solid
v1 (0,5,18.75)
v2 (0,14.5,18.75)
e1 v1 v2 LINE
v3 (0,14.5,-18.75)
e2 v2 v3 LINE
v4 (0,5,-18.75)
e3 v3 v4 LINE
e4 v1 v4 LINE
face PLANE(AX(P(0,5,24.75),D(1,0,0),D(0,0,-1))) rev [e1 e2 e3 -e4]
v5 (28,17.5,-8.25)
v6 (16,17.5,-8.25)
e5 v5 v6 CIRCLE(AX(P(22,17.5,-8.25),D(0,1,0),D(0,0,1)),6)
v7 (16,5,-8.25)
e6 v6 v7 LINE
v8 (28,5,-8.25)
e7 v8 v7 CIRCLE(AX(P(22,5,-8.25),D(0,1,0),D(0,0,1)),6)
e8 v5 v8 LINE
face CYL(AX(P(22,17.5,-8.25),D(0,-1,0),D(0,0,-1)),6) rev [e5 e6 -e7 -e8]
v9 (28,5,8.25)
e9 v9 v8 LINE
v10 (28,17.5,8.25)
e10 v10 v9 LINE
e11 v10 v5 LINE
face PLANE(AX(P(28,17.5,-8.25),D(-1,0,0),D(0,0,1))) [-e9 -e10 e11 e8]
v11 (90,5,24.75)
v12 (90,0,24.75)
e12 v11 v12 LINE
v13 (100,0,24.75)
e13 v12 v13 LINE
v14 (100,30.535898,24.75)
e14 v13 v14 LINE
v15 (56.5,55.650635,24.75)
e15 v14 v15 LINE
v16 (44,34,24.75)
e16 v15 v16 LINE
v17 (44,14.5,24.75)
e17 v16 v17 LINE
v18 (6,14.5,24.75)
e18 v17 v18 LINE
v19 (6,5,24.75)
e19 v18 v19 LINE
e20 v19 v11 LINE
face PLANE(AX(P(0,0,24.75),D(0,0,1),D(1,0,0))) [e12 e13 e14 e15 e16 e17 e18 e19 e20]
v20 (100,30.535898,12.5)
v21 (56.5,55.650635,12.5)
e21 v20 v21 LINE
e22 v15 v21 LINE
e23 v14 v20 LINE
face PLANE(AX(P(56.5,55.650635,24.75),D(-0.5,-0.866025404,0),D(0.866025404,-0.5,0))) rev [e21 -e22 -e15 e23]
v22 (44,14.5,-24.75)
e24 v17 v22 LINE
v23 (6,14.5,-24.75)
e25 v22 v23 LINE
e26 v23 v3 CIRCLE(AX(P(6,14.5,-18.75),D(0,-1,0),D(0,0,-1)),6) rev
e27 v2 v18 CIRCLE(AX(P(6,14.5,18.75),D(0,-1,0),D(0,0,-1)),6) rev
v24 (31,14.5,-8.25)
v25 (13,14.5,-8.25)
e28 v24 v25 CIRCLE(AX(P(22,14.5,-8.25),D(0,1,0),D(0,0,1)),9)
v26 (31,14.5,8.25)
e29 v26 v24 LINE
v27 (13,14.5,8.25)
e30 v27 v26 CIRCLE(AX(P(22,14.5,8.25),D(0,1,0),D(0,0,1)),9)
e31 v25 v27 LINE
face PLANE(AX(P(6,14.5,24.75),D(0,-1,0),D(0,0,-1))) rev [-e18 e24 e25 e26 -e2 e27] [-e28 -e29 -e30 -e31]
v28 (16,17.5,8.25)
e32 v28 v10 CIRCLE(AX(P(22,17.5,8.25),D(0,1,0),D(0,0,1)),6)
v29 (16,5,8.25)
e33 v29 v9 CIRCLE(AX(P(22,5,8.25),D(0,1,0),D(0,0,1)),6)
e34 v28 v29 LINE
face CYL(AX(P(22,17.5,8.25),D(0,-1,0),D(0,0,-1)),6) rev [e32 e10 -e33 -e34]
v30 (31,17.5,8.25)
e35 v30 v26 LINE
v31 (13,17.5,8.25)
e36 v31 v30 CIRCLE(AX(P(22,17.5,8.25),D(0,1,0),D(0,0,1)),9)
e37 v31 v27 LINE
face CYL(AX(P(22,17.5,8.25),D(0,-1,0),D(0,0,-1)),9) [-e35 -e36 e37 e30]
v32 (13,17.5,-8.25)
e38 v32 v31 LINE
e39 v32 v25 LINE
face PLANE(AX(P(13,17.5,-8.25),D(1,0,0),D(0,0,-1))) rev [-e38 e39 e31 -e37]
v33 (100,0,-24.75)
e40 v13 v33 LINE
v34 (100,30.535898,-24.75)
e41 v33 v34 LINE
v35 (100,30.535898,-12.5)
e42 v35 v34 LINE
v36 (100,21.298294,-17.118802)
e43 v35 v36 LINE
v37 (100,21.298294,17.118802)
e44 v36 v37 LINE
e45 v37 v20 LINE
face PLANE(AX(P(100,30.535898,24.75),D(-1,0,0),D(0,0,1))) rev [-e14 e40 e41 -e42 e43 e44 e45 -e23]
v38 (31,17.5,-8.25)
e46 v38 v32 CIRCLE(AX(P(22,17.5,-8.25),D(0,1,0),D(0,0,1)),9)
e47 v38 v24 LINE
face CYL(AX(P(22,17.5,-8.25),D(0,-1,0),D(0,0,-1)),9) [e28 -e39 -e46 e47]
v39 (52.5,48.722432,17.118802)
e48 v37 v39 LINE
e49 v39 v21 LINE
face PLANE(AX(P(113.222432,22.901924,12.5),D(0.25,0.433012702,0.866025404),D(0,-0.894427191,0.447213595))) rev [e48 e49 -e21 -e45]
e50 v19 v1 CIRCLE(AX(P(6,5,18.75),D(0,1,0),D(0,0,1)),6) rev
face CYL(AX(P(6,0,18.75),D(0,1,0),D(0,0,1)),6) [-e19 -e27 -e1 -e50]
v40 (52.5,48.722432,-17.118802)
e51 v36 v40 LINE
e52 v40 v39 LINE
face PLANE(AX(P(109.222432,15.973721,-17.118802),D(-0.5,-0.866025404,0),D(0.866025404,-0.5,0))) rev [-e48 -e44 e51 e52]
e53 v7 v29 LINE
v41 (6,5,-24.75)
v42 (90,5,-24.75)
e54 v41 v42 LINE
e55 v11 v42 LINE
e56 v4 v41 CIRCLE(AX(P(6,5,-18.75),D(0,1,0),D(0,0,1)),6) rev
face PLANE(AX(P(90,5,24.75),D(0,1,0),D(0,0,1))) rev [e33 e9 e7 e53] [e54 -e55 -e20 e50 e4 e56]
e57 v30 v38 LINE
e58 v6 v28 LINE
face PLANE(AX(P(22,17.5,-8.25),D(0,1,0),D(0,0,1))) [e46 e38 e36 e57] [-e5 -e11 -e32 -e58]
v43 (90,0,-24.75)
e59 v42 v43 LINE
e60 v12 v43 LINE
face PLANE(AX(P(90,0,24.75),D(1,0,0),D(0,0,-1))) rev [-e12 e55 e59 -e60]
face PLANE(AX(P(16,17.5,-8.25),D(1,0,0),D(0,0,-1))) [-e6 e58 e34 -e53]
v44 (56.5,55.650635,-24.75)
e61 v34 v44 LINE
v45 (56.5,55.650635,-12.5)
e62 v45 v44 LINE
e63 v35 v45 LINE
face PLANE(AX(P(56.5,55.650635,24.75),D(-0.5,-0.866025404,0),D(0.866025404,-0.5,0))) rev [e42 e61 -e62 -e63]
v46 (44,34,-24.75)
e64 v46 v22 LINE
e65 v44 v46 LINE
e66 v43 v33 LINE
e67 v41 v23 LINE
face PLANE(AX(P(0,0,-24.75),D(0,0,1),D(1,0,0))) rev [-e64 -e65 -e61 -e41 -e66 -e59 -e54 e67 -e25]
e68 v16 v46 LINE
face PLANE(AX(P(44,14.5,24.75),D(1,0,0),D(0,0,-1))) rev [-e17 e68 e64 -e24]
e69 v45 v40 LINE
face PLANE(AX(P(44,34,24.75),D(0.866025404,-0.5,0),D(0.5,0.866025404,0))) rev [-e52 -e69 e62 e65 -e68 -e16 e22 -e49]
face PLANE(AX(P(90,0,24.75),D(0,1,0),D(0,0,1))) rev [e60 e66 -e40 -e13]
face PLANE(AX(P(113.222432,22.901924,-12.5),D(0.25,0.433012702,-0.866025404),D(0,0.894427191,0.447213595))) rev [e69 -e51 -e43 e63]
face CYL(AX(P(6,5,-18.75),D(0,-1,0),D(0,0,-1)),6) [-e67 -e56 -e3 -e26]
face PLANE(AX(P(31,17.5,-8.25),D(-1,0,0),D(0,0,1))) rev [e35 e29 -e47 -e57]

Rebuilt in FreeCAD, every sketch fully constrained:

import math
import FreeCAD as App
import Part
import Sketcher
Q = App.Units.Quantity


def edges_at(feature, points):
    """Names of the edges that pass closest to the given points."""
    edges = feature.Shape.Edges
    near = lambda p: min(range(len(edges)), key=lambda i: edges[i].distToShape(Part.Vertex(*p))[0])
    return sorted({f"Edge{near(p) + 1}" for p in points})

doc = App.newDocument("Part")
body = doc.addObject("PartDesign::Body", "Body")

# Sketch on XY plane
sketch1 = body.newObject("Sketcher::SketchObject", "Sketch")
sketch1.AttachmentSupport = (doc.getObject("XY_Plane"), [""])
sketch1.MapMode = "FlatFace"
sketch1.addGeometry([
    Part.LineSegment(App.Vector(56, 56, 0), App.Vector(44, 34, 0)),  # 0
    Part.LineSegment(App.Vector(44, 34, 0), App.Vector(44, 14, 0)),  # 1
    Part.LineSegment(App.Vector(44, 14, 0), App.Vector(0, 14, 0)),  # 2
    Part.LineSegment(App.Vector(0, 14, 0), App.Vector(0, 5, 0)),  # 3
    Part.LineSegment(App.Vector(0, 5, 0), App.Vector(90, 5, 0)),  # 4
    Part.LineSegment(App.Vector(90, 5, 0), App.Vector(90, 0, 0)),  # 5
    Part.LineSegment(App.Vector(90, 0, 0), App.Vector(100, 0, 0)),  # 6
    Part.LineSegment(App.Vector(100, 0, 0), App.Vector(100, 31, 0)),  # 7
    Part.LineSegment(App.Vector(100, 31, 0), App.Vector(56, 56, 0)),  # 8
], False)
sketch1.addConstraint([
    Sketcher.Constraint("Coincident", 0, 2, 1, 1),
    Sketcher.Constraint("Coincident", 1, 2, 2, 1),
    Sketcher.Constraint("Coincident", 2, 2, 3, 1),
    Sketcher.Constraint("Coincident", 3, 2, 4, 1),
    Sketcher.Constraint("Coincident", 4, 2, 5, 1),
    Sketcher.Constraint("Coincident", 5, 2, 6, 1),
    Sketcher.Constraint("Coincident", 6, 2, 7, 1),
    Sketcher.Constraint("Coincident", 7, 2, 8, 1),
    Sketcher.Constraint("Coincident", 8, 2, 0, 1),
    Sketcher.Constraint("Vertical", 1),
    Sketcher.Constraint("Horizontal", 2),
    Sketcher.Constraint("Vertical", 3),
    Sketcher.Constraint("Horizontal", 4),
    Sketcher.Constraint("Vertical", 5),
    Sketcher.Constraint("Horizontal", 6),
    Sketcher.Constraint("Vertical", 7),
    Sketcher.Constraint("PointOnObject", 2, 2, -2),
    Sketcher.Constraint("PointOnObject", 5, 2, -1),
    Sketcher.Constraint("Perpendicular", 0, 8),
    Sketcher.Constraint("DistanceX", 2, 2, 2, 1, Q("44 mm")),
    Sketcher.Constraint("DistanceX", 4, 1, 4, 2, Q("90 mm")),
    Sketcher.Constraint("DistanceX", 6, 1, 6, 2, Q("10 mm")),
    Sketcher.Constraint("DistanceY", 5, 2, 5, 1, Q("5 mm")),
    Sketcher.Constraint("Angle", 0, Q("-120 deg")),
    Sketcher.Constraint("Distance", 0, Q("25 mm")),
    Sketcher.Constraint("DistanceY", 1, 2, 1, 1, Q("19.5 mm")),
    Sketcher.Constraint("DistanceY", 3, 2, 3, 1, Q("9.5 mm")),
])
pad1 = body.newObject("PartDesign::Pad", "Pad")
pad1.Profile = sketch1
pad1.Length = 49.5
pad1.Midplane = True

# Sketch on XZ plane
sketch2 = body.newObject("Sketcher::SketchObject", "Sketch001")
sketch2.AttachmentSupport = (doc.getObject("XZ_Plane"), [""])
sketch2.MapMode = "FlatFace"
sketch2.AttachmentOffset = App.Placement(App.Vector(0, 0, -14.5), App.Rotation())
sketch2.addGeometry([
    Part.LineSegment(App.Vector(31, 8, 0), App.Vector(31, -8, 0)),  # 0
    Part.ArcOfCircle(Part.Circle(App.Vector(22, -8, 0), App.Vector(0, 0, 1), 9), math.radians(180), math.radians(360)),  # 1
    Part.LineSegment(App.Vector(13, -8, 0), App.Vector(13, 8, 0)),  # 2
    Part.ArcOfCircle(Part.Circle(App.Vector(22, 8, 0), App.Vector(0, 0, 1), 9), math.radians(0), math.radians(180)),  # 3
    Part.LineSegment(App.Vector(28, -8, 0), App.Vector(28, 8, 0)),  # 4
    Part.ArcOfCircle(Part.Circle(App.Vector(22, 8, 0), App.Vector(0, 0, 1), 6), math.radians(0), math.radians(180)),  # 5
    Part.LineSegment(App.Vector(16, 8, 0), App.Vector(16, -8, 0)),  # 6
    Part.ArcOfCircle(Part.Circle(App.Vector(22, -8, 0), App.Vector(0, 0, 1), 6), math.radians(180), math.radians(360)),  # 7
], False)
sketch2.addConstraint([
    Sketcher.Constraint("Tangent", 0, 2, 1, 2),
    Sketcher.Constraint("Tangent", 1, 1, 2, 1),
    Sketcher.Constraint("Tangent", 2, 2, 3, 2),
    Sketcher.Constraint("Tangent", 3, 1, 0, 1),
    Sketcher.Constraint("Tangent", 4, 2, 5, 1),
    Sketcher.Constraint("Tangent", 5, 2, 6, 1),
    Sketcher.Constraint("Tangent", 6, 2, 7, 1),
    Sketcher.Constraint("Tangent", 7, 2, 4, 1),
    Sketcher.Constraint("Vertical", 0),
    Sketcher.Constraint("Vertical", 2),
    Sketcher.Constraint("Vertical", 4),
    Sketcher.Constraint("Vertical", 6),
    Sketcher.Constraint("Coincident", 5, 3, 3, 3),
    Sketcher.Constraint("Horizontal", 7, 3, 0, 2),
    Sketcher.Constraint("Radius", 1, Q("9 mm")),
    Sketcher.Constraint("Radius", 5, Q("6 mm")),
    Sketcher.Constraint("DistanceY", 0, 2, 0, 1, Q("16.5 mm")),
    Sketcher.Constraint("DistanceX", -1, 1, 1, 3, Q("22 mm")),
    Sketcher.Constraint("DistanceY", 1, 3, -1, 1, Q("8.25 mm")),
])
pad2 = body.newObject("PartDesign::Pad", "Pad001")
pad2.Profile = sketch2
pad2.Length = 3
pad2.Reversed = True

# Sketch on XZ plane
sketch3 = body.newObject("Sketcher::SketchObject", "Sketch002")
sketch3.AttachmentSupport = (doc.getObject("XZ_Plane"), [""])
sketch3.MapMode = "FlatFace"
sketch3.AttachmentOffset = App.Placement(App.Vector(0, 0, -14.5), App.Rotation())
sketch3.addGeometry([
    Part.LineSegment(App.Vector(28, 8, 0), App.Vector(28, -8, 0)),
    Part.ArcOfCircle(Part.Circle(App.Vector(22, -8, 0), App.Vector(0, 0, 1), 6), math.radians(180), math.radians(360)),
    Part.LineSegment(App.Vector(16, -8, 0), App.Vector(16, 8, 0)),
    Part.ArcOfCircle(Part.Circle(App.Vector(22, 8, 0), App.Vector(0, 0, 1), 6), math.radians(0), math.radians(180)),
], False)
sketch3.addConstraint([
    Sketcher.Constraint("Tangent", 0, 2, 1, 2),
    Sketcher.Constraint("Tangent", 1, 1, 2, 1),
    Sketcher.Constraint("Tangent", 2, 2, 3, 2),
    Sketcher.Constraint("Tangent", 3, 1, 0, 1),
    Sketcher.Constraint("Vertical", 0),
    Sketcher.Constraint("Vertical", 2),
    Sketcher.Constraint("Radius", 1, Q("6 mm")),
    Sketcher.Constraint("DistanceY", 0, 2, 0, 1, Q("16.5 mm")),
    Sketcher.Constraint("DistanceX", -1, 1, 1, 3, Q("22 mm")),
    Sketcher.Constraint("DistanceY", 1, 3, -1, 1, Q("8.25 mm")),
])
pocket1 = body.newObject("PartDesign::Pocket", "Pocket")
pocket1.Profile = sketch3
pocket1.Type = "ThroughAll"
pocket1.Reversed = True

# Sketch on an angled plane
sketch4 = body.newObject("Sketcher::SketchObject", "Sketch003")
sketch4.Placement = App.Placement(App.Vector(18.277568, -10.552559, 0), App.Rotation(App.Vector(0, 0, 1), App.Vector(0.5, 0.866025404, 0), App.Vector(-0.866025404, 0.5, 0), "ZXY"))
sketch4.addGeometry([
    Part.LineSegment(App.Vector(12, 76, 0), App.Vector(-12, 76, 0)),
    Part.LineSegment(App.Vector(-12, 76, 0), App.Vector(-17, 68, 0)),
    Part.LineSegment(App.Vector(-17, 68, 0), App.Vector(17, 68, 0)),
    Part.LineSegment(App.Vector(17, 68, 0), App.Vector(12, 76, 0)),
], False)
sketch4.addConstraint([
    Sketcher.Constraint("Coincident", 0, 2, 1, 1),
    Sketcher.Constraint("Coincident", 1, 2, 2, 1),
    Sketcher.Constraint("Coincident", 2, 2, 3, 1),
    Sketcher.Constraint("Coincident", 3, 2, 0, 1),
    Sketcher.Constraint("Horizontal", 0),
    Sketcher.Constraint("Horizontal", 2),
    Sketcher.Constraint("Equal", 1, 3),
    Sketcher.Constraint("DistanceX", 0, 2, 0, 1, Q("25 mm")),
    Sketcher.Constraint("Angle", 1, Q("-120 deg")),
    Sketcher.Constraint("DistanceY", 1, 2, 0, 2, Q("8 mm")),
    Sketcher.Constraint("DistanceX", 0, 2, -1, 1, Q("12.5 mm")),
    Sketcher.Constraint("DistanceY", -1, 1, 0, 2, Q("76.444864 mm")),
])
pocket2 = body.newObject("PartDesign::Pocket", "Pocket001")
pocket2.Profile = sketch4
pocket2.Type = "ThroughAll"
doc.recompute()

fillet = body.newObject("PartDesign::Fillet", "Fillet")
fillet.Base = (pocket2, edges_at(pocket2, [(0, 9.75, -24.75), (0, 9.75, 24.75)]))
fillet.Radius = 6

doc.recompute()
